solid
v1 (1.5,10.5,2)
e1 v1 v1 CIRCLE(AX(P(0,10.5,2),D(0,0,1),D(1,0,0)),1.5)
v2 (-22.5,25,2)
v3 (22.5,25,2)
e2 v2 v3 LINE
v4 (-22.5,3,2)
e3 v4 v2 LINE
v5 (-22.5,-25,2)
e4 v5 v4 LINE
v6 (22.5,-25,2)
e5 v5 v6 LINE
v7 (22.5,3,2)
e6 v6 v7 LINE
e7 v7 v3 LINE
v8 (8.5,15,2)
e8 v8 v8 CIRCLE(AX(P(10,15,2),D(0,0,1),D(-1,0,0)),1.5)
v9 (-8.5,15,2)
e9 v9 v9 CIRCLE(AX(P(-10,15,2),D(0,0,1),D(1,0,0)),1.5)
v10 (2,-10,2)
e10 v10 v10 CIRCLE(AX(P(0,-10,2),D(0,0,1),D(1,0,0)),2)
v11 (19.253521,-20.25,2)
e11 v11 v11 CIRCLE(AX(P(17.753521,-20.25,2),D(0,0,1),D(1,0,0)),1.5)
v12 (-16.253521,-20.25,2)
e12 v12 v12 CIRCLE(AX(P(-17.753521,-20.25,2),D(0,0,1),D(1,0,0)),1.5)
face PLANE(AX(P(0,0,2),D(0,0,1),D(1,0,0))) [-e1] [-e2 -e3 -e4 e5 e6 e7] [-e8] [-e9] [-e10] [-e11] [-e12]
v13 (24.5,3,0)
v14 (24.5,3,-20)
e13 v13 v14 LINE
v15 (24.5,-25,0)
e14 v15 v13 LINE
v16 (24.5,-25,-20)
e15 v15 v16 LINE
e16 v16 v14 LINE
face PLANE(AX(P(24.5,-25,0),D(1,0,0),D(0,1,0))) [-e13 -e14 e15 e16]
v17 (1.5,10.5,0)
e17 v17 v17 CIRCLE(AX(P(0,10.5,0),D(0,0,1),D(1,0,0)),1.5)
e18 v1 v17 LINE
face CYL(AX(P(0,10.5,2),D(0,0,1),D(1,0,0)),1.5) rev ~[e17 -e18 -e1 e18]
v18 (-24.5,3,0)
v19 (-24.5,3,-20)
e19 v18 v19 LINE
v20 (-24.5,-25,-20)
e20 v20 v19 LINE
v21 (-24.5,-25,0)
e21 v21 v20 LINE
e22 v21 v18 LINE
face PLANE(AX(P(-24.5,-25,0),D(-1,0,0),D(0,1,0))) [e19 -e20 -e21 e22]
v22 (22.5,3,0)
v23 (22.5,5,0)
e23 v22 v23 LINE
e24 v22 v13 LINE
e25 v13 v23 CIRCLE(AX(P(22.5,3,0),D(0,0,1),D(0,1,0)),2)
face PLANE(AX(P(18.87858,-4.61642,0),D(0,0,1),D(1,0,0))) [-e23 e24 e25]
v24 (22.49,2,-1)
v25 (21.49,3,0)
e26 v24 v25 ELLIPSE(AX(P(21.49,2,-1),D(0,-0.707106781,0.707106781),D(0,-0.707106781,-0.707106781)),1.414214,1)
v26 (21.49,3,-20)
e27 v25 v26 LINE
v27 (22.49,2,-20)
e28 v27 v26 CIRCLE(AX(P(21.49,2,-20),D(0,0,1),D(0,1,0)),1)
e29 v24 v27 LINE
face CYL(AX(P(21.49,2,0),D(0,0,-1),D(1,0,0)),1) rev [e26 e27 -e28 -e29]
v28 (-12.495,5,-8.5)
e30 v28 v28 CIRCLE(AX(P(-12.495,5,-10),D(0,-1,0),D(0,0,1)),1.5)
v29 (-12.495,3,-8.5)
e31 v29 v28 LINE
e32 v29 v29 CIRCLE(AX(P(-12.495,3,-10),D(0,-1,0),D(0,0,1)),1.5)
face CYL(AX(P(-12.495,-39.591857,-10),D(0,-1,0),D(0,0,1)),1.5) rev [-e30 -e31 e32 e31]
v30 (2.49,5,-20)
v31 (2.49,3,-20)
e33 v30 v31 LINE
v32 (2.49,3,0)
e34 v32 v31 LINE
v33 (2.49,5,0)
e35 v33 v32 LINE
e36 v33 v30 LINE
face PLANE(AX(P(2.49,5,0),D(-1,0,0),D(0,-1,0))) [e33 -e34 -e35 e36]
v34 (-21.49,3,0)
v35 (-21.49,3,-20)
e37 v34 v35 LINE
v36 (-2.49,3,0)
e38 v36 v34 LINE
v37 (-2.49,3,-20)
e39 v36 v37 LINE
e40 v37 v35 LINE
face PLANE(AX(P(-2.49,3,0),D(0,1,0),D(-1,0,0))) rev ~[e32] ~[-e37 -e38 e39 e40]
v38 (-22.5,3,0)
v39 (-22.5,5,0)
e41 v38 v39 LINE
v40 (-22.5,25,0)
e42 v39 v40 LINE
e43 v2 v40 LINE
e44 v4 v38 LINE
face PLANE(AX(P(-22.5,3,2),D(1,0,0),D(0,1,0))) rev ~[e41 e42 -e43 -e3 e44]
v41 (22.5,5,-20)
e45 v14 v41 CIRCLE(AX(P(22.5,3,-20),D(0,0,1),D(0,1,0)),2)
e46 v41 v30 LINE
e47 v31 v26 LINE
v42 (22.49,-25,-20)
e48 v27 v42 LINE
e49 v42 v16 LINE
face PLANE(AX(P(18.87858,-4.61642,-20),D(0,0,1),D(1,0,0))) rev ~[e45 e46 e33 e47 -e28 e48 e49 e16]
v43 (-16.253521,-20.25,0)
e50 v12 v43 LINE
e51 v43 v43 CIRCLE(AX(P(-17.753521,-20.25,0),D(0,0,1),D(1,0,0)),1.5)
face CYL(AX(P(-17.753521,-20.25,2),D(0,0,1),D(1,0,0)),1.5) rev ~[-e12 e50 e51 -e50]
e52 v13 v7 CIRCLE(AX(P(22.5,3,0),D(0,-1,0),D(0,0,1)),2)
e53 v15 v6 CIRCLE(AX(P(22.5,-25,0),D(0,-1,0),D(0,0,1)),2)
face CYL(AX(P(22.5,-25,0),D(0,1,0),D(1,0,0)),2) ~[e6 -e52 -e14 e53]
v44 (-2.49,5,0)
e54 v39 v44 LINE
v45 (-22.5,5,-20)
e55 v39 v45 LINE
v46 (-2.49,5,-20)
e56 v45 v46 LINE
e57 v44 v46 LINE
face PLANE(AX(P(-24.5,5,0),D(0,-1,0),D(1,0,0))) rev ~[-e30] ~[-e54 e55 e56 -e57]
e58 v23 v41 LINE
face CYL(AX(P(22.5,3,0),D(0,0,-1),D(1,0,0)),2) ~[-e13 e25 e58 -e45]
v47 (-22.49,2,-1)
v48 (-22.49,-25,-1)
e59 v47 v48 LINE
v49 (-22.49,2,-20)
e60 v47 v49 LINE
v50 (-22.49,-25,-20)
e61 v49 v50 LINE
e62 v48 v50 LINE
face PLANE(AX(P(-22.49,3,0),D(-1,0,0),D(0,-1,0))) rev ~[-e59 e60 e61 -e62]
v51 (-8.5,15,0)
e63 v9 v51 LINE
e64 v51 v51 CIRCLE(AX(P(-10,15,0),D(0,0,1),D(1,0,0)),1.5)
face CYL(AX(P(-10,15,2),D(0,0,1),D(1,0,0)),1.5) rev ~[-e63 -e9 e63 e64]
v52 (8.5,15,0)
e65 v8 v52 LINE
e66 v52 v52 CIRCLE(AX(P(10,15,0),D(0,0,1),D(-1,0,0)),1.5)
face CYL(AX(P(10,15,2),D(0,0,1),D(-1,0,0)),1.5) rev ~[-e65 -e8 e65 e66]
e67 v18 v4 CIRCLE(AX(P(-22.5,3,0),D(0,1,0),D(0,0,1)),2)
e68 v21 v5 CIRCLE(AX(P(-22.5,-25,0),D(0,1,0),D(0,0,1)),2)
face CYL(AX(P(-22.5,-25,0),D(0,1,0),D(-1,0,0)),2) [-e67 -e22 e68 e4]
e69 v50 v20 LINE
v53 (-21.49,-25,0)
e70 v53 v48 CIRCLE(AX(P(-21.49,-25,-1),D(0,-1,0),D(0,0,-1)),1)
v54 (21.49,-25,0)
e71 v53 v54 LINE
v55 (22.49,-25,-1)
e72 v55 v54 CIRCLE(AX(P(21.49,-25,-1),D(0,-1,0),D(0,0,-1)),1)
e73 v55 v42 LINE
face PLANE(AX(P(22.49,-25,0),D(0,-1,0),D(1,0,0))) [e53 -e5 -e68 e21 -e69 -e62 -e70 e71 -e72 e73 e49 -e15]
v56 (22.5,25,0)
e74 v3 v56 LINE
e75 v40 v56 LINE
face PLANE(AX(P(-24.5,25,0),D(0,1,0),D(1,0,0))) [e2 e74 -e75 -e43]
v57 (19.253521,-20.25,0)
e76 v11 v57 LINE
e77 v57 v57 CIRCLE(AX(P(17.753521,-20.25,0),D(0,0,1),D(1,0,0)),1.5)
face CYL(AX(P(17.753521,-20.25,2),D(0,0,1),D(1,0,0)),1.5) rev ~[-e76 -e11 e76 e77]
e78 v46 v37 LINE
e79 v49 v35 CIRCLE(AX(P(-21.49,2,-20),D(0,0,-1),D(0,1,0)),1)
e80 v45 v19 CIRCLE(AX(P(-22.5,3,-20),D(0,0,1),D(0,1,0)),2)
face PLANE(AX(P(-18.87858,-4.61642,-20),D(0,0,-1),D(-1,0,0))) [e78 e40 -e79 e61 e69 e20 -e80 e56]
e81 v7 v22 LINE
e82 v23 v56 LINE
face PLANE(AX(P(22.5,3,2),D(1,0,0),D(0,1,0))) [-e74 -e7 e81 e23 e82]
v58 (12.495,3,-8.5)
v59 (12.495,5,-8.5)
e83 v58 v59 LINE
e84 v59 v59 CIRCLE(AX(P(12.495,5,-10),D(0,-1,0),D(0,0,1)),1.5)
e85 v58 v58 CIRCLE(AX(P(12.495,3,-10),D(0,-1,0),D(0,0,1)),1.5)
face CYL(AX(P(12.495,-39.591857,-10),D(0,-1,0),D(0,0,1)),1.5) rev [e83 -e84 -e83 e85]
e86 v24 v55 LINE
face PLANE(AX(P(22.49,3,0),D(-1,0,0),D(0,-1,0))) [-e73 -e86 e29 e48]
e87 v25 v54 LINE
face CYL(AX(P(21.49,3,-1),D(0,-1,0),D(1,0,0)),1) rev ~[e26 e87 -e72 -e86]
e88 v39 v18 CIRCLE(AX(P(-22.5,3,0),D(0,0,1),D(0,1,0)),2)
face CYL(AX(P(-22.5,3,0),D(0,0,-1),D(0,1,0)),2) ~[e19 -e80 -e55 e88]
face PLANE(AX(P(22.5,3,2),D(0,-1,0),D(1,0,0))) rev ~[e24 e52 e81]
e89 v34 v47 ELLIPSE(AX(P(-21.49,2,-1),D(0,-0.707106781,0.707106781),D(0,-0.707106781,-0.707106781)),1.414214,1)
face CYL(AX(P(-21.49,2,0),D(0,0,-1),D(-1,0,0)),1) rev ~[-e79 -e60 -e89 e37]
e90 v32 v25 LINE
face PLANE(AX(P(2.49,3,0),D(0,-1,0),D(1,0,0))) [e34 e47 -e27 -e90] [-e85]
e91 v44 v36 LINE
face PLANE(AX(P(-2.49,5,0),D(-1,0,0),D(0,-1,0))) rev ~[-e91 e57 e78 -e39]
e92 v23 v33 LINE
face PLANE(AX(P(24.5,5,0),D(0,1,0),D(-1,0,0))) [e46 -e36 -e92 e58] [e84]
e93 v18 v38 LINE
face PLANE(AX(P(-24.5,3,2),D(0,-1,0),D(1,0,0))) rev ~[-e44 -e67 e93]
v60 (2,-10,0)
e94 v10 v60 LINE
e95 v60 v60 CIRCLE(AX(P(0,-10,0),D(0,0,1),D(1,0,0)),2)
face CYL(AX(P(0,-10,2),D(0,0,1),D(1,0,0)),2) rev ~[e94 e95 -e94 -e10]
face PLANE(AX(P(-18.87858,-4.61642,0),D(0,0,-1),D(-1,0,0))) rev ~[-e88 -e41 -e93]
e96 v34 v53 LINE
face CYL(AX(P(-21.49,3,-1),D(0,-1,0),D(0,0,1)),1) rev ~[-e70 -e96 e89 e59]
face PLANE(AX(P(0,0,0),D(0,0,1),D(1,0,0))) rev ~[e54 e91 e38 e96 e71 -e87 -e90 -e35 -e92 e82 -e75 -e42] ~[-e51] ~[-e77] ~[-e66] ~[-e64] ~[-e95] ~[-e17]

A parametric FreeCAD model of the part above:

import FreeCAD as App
import Part
import Sketcher
Q = App.Units.Quantity


def edges_at(feature, points):
    """Names of the edges that pass closest to the given points."""
    edges = feature.Shape.Edges
    near = lambda p: min(range(len(edges)), key=lambda i: edges[i].distToShape(Part.Vertex(*p))[0])
    return sorted({f"Edge{near(p) + 1}" for p in points})


def add_polygon(sketch, points):
    """Adds a closed chain of lines whose ends are joined by coincident constraints."""
    first, n = sketch.GeometryCount, len(points)
    for a, b in zip(points, points[1:] + points[:1]):
        sketch.addGeometry(Part.LineSegment(App.Vector(*a, 0), App.Vector(*b, 0)), False)
    for i in range(n):
        sketch.addConstraint(Sketcher.Constraint("Coincident", first + i, 2, first + (i + 1) % n, 1))

doc = App.newDocument("Part")
body = doc.addObject("PartDesign::Body", "Body")

sketch1 = doc.addObject("Sketcher::SketchObject", "Sketch")
body.addObject(sketch1)
sketch1.AttachmentSupport = (doc.XY_Plane, [""])
sketch1.MapMode = "FlatFace"
add_polygon(sketch1, [(-24.5, 25), (-24.5, -25), (24.5, -25), (24.5, 25)])
sketch1.addConstraint([
    Sketcher.Constraint("Vertical", 0),
    Sketcher.Constraint("Horizontal", 1),
    Sketcher.Constraint("Vertical", 2),
    Sketcher.Constraint("Horizontal", 3),
    Sketcher.Constraint("Symmetric", 0, 2, 2, 2, -1, 1),
    Sketcher.Constraint("DistanceX", 1, 1, 1, 2, Q("49 mm")),
    Sketcher.Constraint("DistanceY", 0, 2, 0, 1, Q("50 mm")),
])
pad1 = doc.addObject("PartDesign::Pad", "Pad")
body.addObject(pad1)
pad1.Profile = sketch1
pad1.Length = 2

sketch2 = doc.addObject("Sketcher::SketchObject", "Sketch001")
body.addObject(sketch2)
sketch2.AttachmentSupport = (doc.XY_Plane, [""])
sketch2.MapMode = "FlatFace"
sketch2.AttachmentOffset = App.Placement(App.Vector(0, 0, 2), App.Rotation())
add_polygon(sketch2, [(-24.5, 25), (-24.5, 3), (-22.5, 3), (-22.5, 25)])
add_polygon(sketch2, [(22.5, 25), (22.5, 3), (24.5, 3), (24.5, 25)])
sketch2.addConstraint([
    Sketcher.Constraint("Vertical", 0),
    Sketcher.Constraint("Horizontal", 1),
    Sketcher.Constraint("Vertical", 2),
    Sketcher.Constraint("Horizontal", 3),
    Sketcher.Constraint("Vertical", 4),
    Sketcher.Constraint("Horizontal", 5),
    Sketcher.Constraint("Vertical", 6),
    Sketcher.Constraint("Horizontal", 7),
    Sketcher.Constraint("Symmetric", 1, 2, 4, 2, -2),
    Sketcher.Constraint("Symmetric", 3, 2, 6, 2, -2),
    Sketcher.Constraint("DistanceX", 1, 1, 1, 2, Q("2 mm")),
    Sketcher.Constraint("DistanceY", 0, 2, 0, 1, Q("22 mm")),
    Sketcher.Constraint("DistanceY", -1, 1, 0, 2, Q("3 mm")),
    Sketcher.Constraint("DistanceX", 1, 2, 4, 2, Q("45 mm")),
])
pocket1 = doc.addObject("PartDesign::Pocket", "Pocket")
body.addObject(pocket1)
pocket1.Profile = sketch2
pocket1.Type = "ThroughAll"

sketch3 = doc.addObject("Sketcher::SketchObject", "Sketch002")
body.addObject(sketch3)
sketch3.AttachmentSupport = (doc.XY_Plane, [""])
sketch3.MapMode = "FlatFace"
add_polygon(sketch3, [(24.5, 5), (24.5, -25), (22.49, -25), (22.49, 3), (2.49, 3), (2.49, 5)])
add_polygon(sketch3, [(-24.5, 5), (-2.49, 5), (-2.49, 3), (-22.49, 3), (-22.49, -25), (-24.5, -25)])
sketch3.addConstraint([
    Sketcher.Constraint("Vertical", 0),
    Sketcher.Constraint("Horizontal", 1),
    Sketcher.Constraint("Vertical", 2),
    Sketcher.Constraint("Horizontal", 3),
    Sketcher.Constraint("Vertical", 4),
    Sketcher.Constraint("Horizontal", 5),
    Sketcher.Constraint("Horizontal", 6),
    Sketcher.Constraint("Vertical", 7),
    Sketcher.Constraint("Horizontal", 8),
    Sketcher.Constraint("Vertical", 9),
    Sketcher.Constraint("Horizontal", 10),
    Sketcher.Constraint("Vertical", 11),
    Sketcher.Constraint("Symmetric", 4, 2, 6, 2, -2),
    Sketcher.Constraint("Symmetric", 2, 2, 8, 2, -2),
    Sketcher.Constraint("Symmetric", 0, 2, 10, 2, -2),
    Sketcher.Constraint("DistanceX", 3, 2, 3, 1, Q("20 mm")),
    Sketcher.Constraint("DistanceY", 0, 2, 0, 1, Q("30 mm")),
    Sketcher.Constraint("DistanceY", 2, 1, 2, 2, Q("28 mm")),
    Sketcher.Constraint("DistanceY", 0, 2, -1, 1, Q("25 mm")),
    Sketcher.Constraint("DistanceX", 1, 2, 1, 1, Q("2.01 mm")),
    Sketcher.Constraint("DistanceX", -1, 1, 0, 2, Q("24.5 mm")),
])
pad2 = doc.addObject("PartDesign::Pad", "Pad001")
body.addObject(pad2)
pad2.Profile = sketch3
pad2.Length = 20
pad2.Reversed = True
doc.recompute()

fillet = doc.addObject("PartDesign::Fillet", "Fillet")
body.addObject(fillet)
fillet.Base = (pad2, edges_at(pad2, [
    (-24.5, 5, -10),
    (24.5, 5, -10),
    (-24.5, -11, 2),
    (24.5, -11, 2),
]))
fillet.Radius = 2
doc.recompute()

fillet2 = doc.addObject("PartDesign::Fillet", "Fillet001")
body.addObject(fillet2)
fillet2.Base = (fillet, edges_at(fillet, [
    (22.49, -11, 0),
    (22.49, 3, -10),
    (-22.49, -11, 0),
    (-22.49, 3, -10),
]))
fillet2.Radius = 1

sketch4 = doc.addObject("Sketcher::SketchObject", "Sketch003")
body.addObject(sketch4)
sketch4.AttachmentSupport = (doc.XY_Plane, [""])
sketch4.MapMode = "FlatFace"
sketch4.AttachmentOffset = App.Placement(App.Vector(0, 0, 2), App.Rotation())
sketch4.addGeometry([
    Part.Circle(App.Vector(0, -10, 0), App.Vector(0, 0, 1), 2),
    Part.Circle(App.Vector(0, 10.5, 0), App.Vector(0, 0, 1), 1.5),
    Part.Circle(App.Vector(17.753521, -20.25, 0), App.Vector(0, 0, 1), 1.5),
    Part.Circle(App.Vector(-17.753521, -20.25, 0), App.Vector(0, 0, 1), 1.5),
    Part.Circle(App.Vector(-10, 15, 0), App.Vector(0, 0, 1), 1.5),
    Part.Circle(App.Vector(10, 15, 0), App.Vector(0, 0, 1), 1.5),
], False)
sketch4.addConstraint([
    Sketcher.Constraint("Equal", 1, 2),
    Sketcher.Constraint("Equal", 2, 3),
    Sketcher.Constraint("Equal", 3, 4),
    Sketcher.Constraint("Equal", 4, 5),
    Sketcher.Constraint("Symmetric", 2, 3, 3, 3, -2),
    Sketcher.Constraint("Symmetric", 4, 3, 5, 3, -2),
    Sketcher.Constraint("PointOnObject", 0, 3, -2),
    Sketcher.Constraint("PointOnObject", 1, 3, -2),
    Sketcher.Constraint("Diameter", 0, Q("4 mm")),
    Sketcher.Constraint("Diameter", 1, Q("3 mm")),
    Sketcher.Constraint("DistanceY", 0, 3, -1, 1, Q("10 mm")),
    Sketcher.Constraint("DistanceX", 4, 3, -1, 1, Q("10 mm")),
    Sketcher.Constraint("DistanceY", -1, 1, 4, 3, Q("15 mm")),
    Sketcher.Constraint("DistanceY", -1, 1, 1, 3, Q("10.5 mm")),
    Sketcher.Constraint("DistanceY", 2, 3, -1, 1, Q("20.25 mm")),
    Sketcher.Constraint("DistanceX", -1, 1, 2, 3, Q("17.753521 mm")),
])
pocket2 = doc.addObject("PartDesign::Pocket", "Pocket001")
body.addObject(pocket2)
pocket2.Profile = sketch4
pocket2.Length = 10

sketch5 = doc.addObject("Sketcher::SketchObject", "Sketch004")
body.addObject(sketch5)
sketch5.AttachmentSupport = (doc.XZ_Plane, [""])
sketch5.MapMode = "FlatFace"
sketch5.AttachmentOffset = App.Placement(App.Vector(0, 0, -5), App.Rotation())
sketch5.addGeometry([
    Part.Circle(App.Vector(12.495, -10, 0), App.Vector(0, 0, 1), 1.5),
    Part.Circle(App.Vector(-12.495, -10, 0), App.Vector(0, 0, 1), 1.5),
], False)
sketch5.addConstraint([
    Sketcher.Constraint("Equal", 0, 1),
    Sketcher.Constraint("Symmetric", 0, 3, 1, 3, -2),
    Sketcher.Constraint("Diameter", 0, Q("3 mm")),
    Sketcher.Constraint("DistanceY", 0, 3, -1, 1, Q("10 mm")),
    Sketcher.Constraint("DistanceX", 1, 3, 0, 3, Q("24.99 mm")),
])
pocket3 = doc.addObject("PartDesign::Pocket", "Pocket002")
body.addObject(pocket3)
pocket3.Profile = sketch5
pocket3.Type = "ThroughAll"
pocket3.Midplane = True

doc.recompute()
